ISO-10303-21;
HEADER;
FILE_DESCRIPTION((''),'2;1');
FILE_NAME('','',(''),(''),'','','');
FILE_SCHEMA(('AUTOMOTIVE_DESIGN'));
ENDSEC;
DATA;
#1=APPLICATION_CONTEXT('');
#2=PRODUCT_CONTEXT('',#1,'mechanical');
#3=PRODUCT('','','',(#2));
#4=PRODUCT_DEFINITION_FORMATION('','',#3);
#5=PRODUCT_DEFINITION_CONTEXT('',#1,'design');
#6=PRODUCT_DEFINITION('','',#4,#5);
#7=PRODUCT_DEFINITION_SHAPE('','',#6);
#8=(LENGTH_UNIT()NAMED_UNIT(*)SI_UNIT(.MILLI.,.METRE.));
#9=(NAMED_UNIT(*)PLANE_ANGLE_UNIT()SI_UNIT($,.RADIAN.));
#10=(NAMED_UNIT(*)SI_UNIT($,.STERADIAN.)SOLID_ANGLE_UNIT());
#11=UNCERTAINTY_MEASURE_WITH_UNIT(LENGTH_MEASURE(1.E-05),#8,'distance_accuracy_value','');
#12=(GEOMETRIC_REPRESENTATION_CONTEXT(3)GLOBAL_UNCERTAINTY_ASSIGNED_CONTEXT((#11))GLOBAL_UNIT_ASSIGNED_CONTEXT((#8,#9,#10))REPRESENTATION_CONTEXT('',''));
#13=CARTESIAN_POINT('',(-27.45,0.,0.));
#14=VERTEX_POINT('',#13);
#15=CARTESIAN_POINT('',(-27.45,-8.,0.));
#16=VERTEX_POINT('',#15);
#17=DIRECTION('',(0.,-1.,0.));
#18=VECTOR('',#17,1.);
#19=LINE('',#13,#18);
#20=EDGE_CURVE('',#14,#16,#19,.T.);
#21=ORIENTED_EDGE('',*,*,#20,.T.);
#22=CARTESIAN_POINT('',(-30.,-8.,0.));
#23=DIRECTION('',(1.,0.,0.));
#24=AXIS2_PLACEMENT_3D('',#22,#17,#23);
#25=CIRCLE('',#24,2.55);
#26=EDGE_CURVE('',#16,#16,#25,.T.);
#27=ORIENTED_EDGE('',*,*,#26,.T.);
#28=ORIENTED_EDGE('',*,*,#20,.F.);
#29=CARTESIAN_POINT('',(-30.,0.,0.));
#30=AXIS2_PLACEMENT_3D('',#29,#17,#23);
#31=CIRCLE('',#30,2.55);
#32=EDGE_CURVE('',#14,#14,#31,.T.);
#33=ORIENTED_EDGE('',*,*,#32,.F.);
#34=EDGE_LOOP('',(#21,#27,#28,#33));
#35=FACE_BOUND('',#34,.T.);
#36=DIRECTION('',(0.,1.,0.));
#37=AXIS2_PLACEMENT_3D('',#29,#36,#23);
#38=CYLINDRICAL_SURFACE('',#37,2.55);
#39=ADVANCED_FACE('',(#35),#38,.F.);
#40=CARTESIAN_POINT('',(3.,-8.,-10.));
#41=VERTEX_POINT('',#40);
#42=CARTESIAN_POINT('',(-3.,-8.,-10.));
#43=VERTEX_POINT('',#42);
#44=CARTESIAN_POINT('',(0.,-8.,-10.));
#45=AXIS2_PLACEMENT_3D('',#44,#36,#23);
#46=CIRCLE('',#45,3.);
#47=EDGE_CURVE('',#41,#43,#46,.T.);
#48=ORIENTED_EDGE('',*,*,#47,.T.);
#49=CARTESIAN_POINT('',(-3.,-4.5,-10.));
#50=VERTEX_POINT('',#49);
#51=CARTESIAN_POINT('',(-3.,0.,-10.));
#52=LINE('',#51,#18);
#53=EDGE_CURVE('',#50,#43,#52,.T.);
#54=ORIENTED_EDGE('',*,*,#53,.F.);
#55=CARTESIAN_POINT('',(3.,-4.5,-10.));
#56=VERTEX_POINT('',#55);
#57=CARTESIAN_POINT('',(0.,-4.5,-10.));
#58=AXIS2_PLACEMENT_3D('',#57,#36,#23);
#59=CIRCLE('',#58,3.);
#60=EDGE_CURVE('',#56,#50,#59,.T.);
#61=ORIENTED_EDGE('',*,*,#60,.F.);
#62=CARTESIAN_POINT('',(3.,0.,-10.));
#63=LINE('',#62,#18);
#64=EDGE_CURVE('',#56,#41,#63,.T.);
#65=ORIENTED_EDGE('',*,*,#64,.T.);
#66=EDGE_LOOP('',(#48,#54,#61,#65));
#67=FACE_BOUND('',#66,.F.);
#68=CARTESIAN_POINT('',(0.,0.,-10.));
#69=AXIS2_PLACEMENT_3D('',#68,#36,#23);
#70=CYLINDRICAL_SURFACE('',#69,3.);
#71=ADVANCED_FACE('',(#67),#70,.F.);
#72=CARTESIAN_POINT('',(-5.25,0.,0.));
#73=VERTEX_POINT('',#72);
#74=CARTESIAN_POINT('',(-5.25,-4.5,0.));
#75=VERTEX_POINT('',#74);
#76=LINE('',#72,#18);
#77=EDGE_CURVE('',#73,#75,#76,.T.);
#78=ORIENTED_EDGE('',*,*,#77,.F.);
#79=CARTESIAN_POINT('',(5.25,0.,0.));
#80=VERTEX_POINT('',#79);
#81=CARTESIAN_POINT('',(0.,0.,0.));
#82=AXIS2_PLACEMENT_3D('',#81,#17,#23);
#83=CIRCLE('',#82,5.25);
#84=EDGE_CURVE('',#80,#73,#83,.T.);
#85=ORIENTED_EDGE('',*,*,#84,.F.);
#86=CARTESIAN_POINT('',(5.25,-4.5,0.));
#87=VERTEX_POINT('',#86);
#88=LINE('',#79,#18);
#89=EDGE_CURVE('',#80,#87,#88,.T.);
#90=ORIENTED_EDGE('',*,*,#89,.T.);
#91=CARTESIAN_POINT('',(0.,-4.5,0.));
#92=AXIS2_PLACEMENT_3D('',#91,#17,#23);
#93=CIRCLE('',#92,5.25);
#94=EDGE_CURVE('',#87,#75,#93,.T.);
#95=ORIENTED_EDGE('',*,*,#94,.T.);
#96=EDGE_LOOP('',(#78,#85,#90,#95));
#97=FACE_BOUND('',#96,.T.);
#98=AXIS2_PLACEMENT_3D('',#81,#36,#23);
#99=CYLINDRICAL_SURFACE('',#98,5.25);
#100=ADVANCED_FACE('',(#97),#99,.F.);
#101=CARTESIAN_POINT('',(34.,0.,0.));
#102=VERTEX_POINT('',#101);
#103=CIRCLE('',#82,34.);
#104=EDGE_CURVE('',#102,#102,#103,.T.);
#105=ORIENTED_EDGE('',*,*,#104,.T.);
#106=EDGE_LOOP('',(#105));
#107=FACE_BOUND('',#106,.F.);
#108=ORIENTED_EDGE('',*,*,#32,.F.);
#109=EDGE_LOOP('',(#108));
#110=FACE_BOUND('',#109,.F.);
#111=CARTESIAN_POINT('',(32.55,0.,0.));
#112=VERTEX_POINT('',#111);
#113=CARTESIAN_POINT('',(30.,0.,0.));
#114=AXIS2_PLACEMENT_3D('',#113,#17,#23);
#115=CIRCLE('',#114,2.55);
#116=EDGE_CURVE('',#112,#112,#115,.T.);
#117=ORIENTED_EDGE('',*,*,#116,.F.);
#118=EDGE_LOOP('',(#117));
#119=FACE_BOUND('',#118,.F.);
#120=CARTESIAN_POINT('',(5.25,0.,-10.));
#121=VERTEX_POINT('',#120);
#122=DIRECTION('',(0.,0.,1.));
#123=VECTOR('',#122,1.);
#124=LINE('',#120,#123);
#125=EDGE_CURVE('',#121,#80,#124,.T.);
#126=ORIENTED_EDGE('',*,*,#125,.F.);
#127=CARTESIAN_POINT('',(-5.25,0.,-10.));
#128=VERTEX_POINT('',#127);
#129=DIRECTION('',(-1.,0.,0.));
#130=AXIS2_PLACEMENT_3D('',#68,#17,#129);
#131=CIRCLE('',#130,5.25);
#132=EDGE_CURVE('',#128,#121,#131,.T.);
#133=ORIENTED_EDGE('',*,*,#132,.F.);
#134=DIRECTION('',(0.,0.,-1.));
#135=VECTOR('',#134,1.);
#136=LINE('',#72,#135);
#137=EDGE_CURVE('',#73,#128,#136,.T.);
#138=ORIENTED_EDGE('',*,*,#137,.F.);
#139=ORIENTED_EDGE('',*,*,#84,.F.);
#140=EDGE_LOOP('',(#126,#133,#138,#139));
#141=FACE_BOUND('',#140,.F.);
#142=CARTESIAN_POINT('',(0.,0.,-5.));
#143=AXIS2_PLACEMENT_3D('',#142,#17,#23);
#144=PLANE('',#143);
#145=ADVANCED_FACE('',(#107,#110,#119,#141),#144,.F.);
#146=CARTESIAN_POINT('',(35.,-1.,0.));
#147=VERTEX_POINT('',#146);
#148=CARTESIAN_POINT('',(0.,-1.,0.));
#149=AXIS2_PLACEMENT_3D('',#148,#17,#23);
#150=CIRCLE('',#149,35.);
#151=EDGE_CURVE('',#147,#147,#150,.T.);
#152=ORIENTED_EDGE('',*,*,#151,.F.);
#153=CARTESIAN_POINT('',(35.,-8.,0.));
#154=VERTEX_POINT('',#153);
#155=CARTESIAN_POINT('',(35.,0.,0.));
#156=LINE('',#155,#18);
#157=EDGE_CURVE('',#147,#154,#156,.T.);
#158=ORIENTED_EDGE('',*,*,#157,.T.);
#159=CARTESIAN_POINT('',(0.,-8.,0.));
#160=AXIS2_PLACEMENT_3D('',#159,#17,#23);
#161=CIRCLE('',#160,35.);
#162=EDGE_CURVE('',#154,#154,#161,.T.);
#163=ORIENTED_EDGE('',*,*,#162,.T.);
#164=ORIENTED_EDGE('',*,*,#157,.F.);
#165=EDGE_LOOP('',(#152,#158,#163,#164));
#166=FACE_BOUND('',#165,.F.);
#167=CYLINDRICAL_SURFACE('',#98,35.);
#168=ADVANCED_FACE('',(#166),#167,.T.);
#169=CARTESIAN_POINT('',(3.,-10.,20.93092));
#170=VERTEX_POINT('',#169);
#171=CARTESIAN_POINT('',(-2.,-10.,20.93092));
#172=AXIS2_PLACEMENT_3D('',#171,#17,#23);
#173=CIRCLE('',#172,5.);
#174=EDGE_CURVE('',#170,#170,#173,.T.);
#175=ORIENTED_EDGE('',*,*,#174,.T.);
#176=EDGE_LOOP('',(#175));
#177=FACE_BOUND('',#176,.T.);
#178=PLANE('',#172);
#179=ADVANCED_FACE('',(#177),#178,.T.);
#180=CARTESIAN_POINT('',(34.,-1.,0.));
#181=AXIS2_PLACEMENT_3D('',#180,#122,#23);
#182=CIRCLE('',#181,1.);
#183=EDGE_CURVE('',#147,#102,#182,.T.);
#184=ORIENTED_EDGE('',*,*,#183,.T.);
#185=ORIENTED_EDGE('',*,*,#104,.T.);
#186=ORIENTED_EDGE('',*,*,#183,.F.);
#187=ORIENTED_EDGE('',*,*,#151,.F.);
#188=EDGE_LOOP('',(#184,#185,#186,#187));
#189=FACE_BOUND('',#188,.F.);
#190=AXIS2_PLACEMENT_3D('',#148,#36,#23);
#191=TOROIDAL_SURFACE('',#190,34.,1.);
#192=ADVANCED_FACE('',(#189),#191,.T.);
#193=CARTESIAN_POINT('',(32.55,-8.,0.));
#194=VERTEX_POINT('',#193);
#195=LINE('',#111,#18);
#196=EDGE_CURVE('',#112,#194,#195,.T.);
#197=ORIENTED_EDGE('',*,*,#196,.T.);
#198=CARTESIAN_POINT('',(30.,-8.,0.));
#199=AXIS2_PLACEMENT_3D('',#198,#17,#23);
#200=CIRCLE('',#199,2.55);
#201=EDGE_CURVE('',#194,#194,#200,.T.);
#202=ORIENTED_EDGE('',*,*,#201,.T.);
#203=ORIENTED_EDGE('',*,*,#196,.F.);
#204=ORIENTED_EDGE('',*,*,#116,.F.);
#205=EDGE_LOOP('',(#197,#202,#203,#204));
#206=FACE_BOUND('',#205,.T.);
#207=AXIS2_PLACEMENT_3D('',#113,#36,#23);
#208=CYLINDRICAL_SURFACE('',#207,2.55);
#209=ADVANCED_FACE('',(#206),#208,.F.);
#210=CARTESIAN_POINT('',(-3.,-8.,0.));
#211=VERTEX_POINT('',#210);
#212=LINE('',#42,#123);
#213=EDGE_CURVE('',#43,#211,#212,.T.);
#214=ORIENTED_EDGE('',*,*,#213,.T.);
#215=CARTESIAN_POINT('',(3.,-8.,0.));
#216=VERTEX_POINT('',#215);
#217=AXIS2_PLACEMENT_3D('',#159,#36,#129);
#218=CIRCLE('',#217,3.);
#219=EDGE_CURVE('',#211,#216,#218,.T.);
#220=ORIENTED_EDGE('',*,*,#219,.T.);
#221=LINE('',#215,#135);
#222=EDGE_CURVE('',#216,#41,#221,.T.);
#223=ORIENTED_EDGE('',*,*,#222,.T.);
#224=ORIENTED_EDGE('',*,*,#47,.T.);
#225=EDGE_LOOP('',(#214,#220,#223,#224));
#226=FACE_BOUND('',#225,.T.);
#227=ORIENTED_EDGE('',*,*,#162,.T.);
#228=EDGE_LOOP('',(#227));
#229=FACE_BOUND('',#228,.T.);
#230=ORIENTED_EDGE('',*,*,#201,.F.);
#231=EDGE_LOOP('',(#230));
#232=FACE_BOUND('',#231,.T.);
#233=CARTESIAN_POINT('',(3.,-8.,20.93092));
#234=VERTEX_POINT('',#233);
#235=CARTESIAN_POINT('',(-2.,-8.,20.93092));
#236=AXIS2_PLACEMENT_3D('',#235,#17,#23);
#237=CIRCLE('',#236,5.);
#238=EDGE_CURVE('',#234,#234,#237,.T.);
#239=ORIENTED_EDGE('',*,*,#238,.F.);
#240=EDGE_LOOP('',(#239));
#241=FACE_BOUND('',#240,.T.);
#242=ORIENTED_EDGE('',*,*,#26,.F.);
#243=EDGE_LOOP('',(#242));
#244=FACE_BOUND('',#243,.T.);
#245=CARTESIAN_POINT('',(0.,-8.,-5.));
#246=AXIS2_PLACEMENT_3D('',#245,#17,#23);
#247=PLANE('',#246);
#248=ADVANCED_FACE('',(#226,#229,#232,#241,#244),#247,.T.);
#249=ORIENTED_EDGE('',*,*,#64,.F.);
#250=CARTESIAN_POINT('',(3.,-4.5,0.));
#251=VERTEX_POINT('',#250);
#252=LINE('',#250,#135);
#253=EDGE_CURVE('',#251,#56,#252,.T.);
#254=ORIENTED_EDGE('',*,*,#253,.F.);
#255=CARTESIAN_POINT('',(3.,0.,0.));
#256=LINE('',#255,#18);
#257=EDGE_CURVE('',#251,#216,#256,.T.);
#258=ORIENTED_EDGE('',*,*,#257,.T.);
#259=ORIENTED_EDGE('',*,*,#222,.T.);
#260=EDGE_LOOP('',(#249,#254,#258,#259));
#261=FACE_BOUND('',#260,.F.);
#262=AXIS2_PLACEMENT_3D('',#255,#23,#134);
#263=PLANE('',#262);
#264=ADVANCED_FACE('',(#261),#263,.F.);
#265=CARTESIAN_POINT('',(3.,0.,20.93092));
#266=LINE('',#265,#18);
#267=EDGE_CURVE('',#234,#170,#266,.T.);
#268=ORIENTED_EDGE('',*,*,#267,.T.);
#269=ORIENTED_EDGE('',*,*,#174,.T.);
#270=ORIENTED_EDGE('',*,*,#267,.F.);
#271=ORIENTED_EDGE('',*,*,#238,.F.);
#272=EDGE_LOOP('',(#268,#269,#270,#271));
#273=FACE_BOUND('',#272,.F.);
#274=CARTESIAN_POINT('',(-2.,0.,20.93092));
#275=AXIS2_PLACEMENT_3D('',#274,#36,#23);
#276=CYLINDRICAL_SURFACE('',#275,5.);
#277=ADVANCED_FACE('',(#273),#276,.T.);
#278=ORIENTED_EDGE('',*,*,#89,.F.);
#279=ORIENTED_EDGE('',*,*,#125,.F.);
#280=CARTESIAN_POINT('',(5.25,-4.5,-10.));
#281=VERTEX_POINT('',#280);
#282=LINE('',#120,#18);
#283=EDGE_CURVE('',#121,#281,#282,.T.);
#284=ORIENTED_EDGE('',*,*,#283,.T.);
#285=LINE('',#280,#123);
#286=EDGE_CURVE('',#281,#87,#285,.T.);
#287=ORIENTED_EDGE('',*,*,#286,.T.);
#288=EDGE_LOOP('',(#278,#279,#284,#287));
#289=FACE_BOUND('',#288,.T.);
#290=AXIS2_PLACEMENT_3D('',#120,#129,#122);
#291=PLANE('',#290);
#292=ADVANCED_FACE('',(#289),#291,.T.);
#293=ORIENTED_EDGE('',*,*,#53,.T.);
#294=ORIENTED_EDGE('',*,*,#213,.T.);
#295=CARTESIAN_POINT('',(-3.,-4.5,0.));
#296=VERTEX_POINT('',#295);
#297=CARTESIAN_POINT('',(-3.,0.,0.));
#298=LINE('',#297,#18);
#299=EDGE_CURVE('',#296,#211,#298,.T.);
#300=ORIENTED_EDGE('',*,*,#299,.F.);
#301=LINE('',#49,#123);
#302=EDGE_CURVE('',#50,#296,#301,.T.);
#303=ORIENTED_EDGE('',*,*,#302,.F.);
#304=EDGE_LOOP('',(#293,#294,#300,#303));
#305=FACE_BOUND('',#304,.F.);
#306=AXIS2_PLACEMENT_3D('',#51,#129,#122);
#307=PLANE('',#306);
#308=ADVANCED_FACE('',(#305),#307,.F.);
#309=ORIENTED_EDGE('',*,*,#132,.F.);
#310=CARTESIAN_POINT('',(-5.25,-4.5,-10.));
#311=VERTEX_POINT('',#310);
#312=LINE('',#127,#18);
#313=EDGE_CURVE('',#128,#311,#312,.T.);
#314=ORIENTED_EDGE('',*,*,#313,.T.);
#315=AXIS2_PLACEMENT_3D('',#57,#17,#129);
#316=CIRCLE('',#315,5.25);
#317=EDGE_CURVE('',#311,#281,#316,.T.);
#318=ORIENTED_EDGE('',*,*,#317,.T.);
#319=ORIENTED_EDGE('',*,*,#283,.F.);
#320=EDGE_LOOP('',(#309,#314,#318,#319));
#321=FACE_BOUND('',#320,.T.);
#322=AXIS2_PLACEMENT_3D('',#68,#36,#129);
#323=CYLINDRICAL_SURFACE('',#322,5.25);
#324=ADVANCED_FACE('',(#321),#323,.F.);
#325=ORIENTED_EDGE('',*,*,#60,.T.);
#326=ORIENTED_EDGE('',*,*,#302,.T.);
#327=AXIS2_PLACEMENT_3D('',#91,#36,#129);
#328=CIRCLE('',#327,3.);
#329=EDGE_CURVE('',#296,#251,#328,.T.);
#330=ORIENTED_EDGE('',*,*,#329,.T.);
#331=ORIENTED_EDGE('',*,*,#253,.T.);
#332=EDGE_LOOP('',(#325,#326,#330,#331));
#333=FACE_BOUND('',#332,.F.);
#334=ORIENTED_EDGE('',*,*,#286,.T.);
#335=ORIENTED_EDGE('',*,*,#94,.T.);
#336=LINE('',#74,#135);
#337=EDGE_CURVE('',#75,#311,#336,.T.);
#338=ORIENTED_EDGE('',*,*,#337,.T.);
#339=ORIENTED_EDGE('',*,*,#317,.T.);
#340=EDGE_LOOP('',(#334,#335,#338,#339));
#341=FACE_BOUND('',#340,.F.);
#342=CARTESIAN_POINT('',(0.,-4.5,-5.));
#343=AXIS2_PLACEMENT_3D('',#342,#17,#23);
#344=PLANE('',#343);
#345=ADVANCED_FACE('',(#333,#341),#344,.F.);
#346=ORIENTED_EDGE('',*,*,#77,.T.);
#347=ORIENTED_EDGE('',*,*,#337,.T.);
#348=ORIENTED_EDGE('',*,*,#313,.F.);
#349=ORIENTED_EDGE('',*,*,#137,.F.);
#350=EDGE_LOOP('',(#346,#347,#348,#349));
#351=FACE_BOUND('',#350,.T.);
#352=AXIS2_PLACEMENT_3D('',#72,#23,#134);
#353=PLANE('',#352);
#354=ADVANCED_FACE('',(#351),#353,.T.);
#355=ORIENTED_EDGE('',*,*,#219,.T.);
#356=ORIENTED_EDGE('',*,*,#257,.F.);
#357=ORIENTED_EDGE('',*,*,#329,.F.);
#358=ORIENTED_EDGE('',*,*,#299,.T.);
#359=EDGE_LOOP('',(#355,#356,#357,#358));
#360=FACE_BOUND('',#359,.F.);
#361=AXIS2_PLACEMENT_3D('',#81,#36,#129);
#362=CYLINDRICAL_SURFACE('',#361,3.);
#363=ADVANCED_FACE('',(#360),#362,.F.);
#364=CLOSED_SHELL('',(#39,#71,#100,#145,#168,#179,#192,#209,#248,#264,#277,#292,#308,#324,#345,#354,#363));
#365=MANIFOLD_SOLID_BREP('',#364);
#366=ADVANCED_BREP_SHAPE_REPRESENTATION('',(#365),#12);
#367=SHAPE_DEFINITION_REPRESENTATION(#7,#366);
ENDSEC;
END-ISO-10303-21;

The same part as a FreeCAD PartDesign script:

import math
import FreeCAD as App
import Part
import Sketcher
from FreeCAD import Vector


def edges_at(feature, points):
    """Names of the edges that pass closest to the given points."""
    edges = feature.Shape.Edges
    near = lambda p: min(range(len(edges)), key=lambda i: edges[i].distToShape(Part.Vertex(*p))[0])
    return sorted({f"Edge{near(p) + 1}" for p in points})

doc = App.newDocument("Part")
body = doc.addObject("PartDesign::Body", "Body")

# Sketch on XZ plane
sketch1 = body.newObject("Sketcher::SketchObject", "Sketch")
sketch1.AttachmentSupport = (doc.getObject("XZ_Plane"), [""])
sketch1.MapMode = "FlatFace"
sketch1.addGeometry(Part.Circle(Vector(0, 0, 0), Vector(0, 0, 1), 35), False)
sketch1.addGeometry(Part.Circle(Vector(-30, 0, 0), Vector(0, 0, 1), 2.55), False)
sketch1.addGeometry(Part.LineSegment(Vector(-5.25, -10, 0), Vector(-5.25, 0, 0)), False)
sketch1.addGeometry(Part.ArcOfCircle(Part.Circle(Vector(0, 0, 0), Vector(0, 0, 1), 5.25), math.radians(0), math.radians(180)), False)
sketch1.addGeometry(Part.LineSegment(Vector(5.25, 0, 0), Vector(5.25, -10, 0)), False)
sketch1.addGeometry(Part.ArcOfCircle(Part.Circle(Vector(0, -10, 0), Vector(0, 0, 1), 5.25), math.radians(180), math.radians(360)), False)
sketch1.addGeometry(Part.Circle(Vector(30, 0, 0), Vector(0, 0, 1), 2.55), False)
sketch1.addGeometry(Part.Circle(Vector(-2, 20.93092, 0), Vector(0, 0, 1), 5), False)
sketch1.addConstraint(Sketcher.Constraint("Tangent", 2, 2, 3, 2))
sketch1.addConstraint(Sketcher.Constraint("Tangent", 3, 1, 4, 1))
sketch1.addConstraint(Sketcher.Constraint("Tangent", 4, 2, 5, 2))
sketch1.addConstraint(Sketcher.Constraint("Tangent", 5, 1, 2, 1))
sketch1.addConstraint(Sketcher.Constraint("Vertical", 2))
sketch1.addConstraint(Sketcher.Constraint("Vertical", 4))
sketch1.addConstraint(Sketcher.Constraint("Coincident", 0, 3, -1, 1))
sketch1.addConstraint(Sketcher.Constraint("Coincident", 3, 3, -1, 1))
sketch1.addConstraint(Sketcher.Constraint("Equal", 1, 6))
sketch1.addConstraint(Sketcher.Constraint("Symmetric", 1, 3, 6, 3, -1, 1))
sketch1.addConstraint(Sketcher.Constraint("PointOnObject", 1, 3, -1))
sketch1.addConstraint(Sketcher.Constraint("Diameter", 0, 70.0))
sketch1.addConstraint(Sketcher.Constraint("Diameter", 7, 10.0))
sketch1.addConstraint(Sketcher.Constraint("Diameter", 1, 5.1))
sketch1.addConstraint(Sketcher.Constraint("DistanceY", 2, 1, 2, 2, 10.0))
sketch1.addConstraint(Sketcher.Constraint("Radius", 3, 5.25))
sketch1.addConstraint(Sketcher.Constraint("DistanceX", 1, 3, -1, 1, 30.0))
sketch1.addConstraint(Sketcher.Constraint("DistanceX", 7, 3, -1, 1, 2.0))
sketch1.addConstraint(Sketcher.Constraint("DistanceY", -1, 1, 7, 3, 20.93092))
pad1 = body.newObject("PartDesign::Pad", "Pad")
pad1.Profile = sketch1
pad1.Length = 8

# Sketch on XZ plane
sketch2 = body.newObject("Sketcher::SketchObject", "Sketch001")
sketch2.AttachmentSupport = (doc.getObject("XZ_Plane"), [""])
sketch2.MapMode = "FlatFace"
sketch2.addGeometry(Part.LineSegment(Vector(5.25, -10, 0), Vector(5.25, 0, 0)), False)
sketch2.addGeometry(Part.ArcOfCircle(Part.Circle(Vector(0, 0, 0), Vector(0, 0, 1), 5.25), math.radians(0), math.radians(180)), False)
sketch2.addGeometry(Part.LineSegment(Vector(-5.25, 0, 0), Vector(-5.25, -10, 0)), False)
sketch2.addGeometry(Part.ArcOfCircle(Part.Circle(Vector(0, -10, 0), Vector(0, 0, 1), 5.25), math.radians(180), math.radians(360)), False)
sketch2.addGeometry(Part.LineSegment(Vector(-3, -10, 0), Vector(-3, 0, 0)), False)
sketch2.addGeometry(Part.ArcOfCircle(Part.Circle(Vector(0, 0, 0), Vector(0, 0, 1), 3), math.radians(0), math.radians(180)), False)
sketch2.addGeometry(Part.LineSegment(Vector(3, 0, 0), Vector(3, -10, 0)), False)
sketch2.addGeometry(Part.ArcOfCircle(Part.Circle(Vector(0, -10, 0), Vector(0, 0, 1), 3), math.radians(180), math.radians(360)), False)
sketch2.addConstraint(Sketcher.Constraint("Tangent", 0, 2, 1, 1))
sketch2.addConstraint(Sketcher.Constraint("Tangent", 1, 2, 2, 1))
sketch2.addConstraint(Sketcher.Constraint("Tangent", 2, 2, 3, 1))
sketch2.addConstraint(Sketcher.Constraint("Tangent", 3, 2, 0, 1))
sketch2.addConstraint(Sketcher.Constraint("Tangent", 4, 2, 5, 2))
sketch2.addConstraint(Sketcher.Constraint("Tangent", 5, 1, 6, 1))
sketch2.addConstraint(Sketcher.Constraint("Tangent", 6, 2, 7, 2))
sketch2.addConstraint(Sketcher.Constraint("Tangent", 7, 1, 4, 1))
sketch2.addConstraint(Sketcher.Constraint("Vertical", 0))
sketch2.addConstraint(Sketcher.Constraint("Vertical", 2))
sketch2.addConstraint(Sketcher.Constraint("Vertical", 4))
sketch2.addConstraint(Sketcher.Constraint("Vertical", 6))
sketch2.addConstraint(Sketcher.Constraint("Coincident", 1, 3, -1, 1))
sketch2.addConstraint(Sketcher.Constraint("Coincident", 5, 3, -1, 1))
sketch2.addConstraint(Sketcher.Constraint("Horizontal", 7, 3, 2, 2))
sketch2.addConstraint(Sketcher.Constraint("Radius", 5, 3.0))
sketch2.addConstraint(Sketcher.Constraint("DistanceY", 0, 1, 0, 2, 10.0))
sketch2.addConstraint(Sketcher.Constraint("Radius", 1, 5.25))
pad2 = body.newObject("PartDesign::Pad", "Pad001")
pad2.Profile = sketch2
pad2.Length = 8

# Sketch on XZ plane
sketch3 = body.newObject("Sketcher::SketchObject", "Sketch002")
sketch3.AttachmentSupport = (doc.getObject("XZ_Plane"), [""])
sketch3.MapMode = "FlatFace"
sketch3.addGeometry(Part.LineSegment(Vector(5.25, -10, 0), Vector(5.25, 0, 0)), False)
sketch3.addGeometry(Part.ArcOfCircle(Part.Circle(Vector(0, 0, 0), Vector(0, 0, 1), 5.25), math.radians(0), math.radians(180)), False)
sketch3.addGeometry(Part.LineSegment(Vector(-5.25, 0, 0), Vector(-5.25, -10, 0)), False)
sketch3.addGeometry(Part.ArcOfCircle(Part.Circle(Vector(0, -10, 0), Vector(0, 0, 1), 5.25), math.radians(180), math.radians(360)), False)
sketch3.addGeometry(Part.LineSegment(Vector(-3, -10, 0), Vector(-3, 0, 0)), False)
sketch3.addGeometry(Part.ArcOfCircle(Part.Circle(Vector(0, 0, 0), Vector(0, 0, 1), 3), math.radians(0), math.radians(180)), False)
sketch3.addGeometry(Part.LineSegment(Vector(3, 0, 0), Vector(3, -10, 0)), False)
sketch3.addGeometry(Part.ArcOfCircle(Part.Circle(Vector(0, -10, 0), Vector(0, 0, 1), 3), math.radians(180), math.radians(360)), False)
sketch3.addConstraint(Sketcher.Constraint("Tangent", 0, 2, 1, 1))
sketch3.addConstraint(Sketcher.Constraint("Tangent", 1, 2, 2, 1))
sketch3.addConstraint(Sketcher.Constraint("Tangent", 2, 2, 3, 1))
sketch3.addConstraint(Sketcher.Constraint("Tangent", 3, 2, 0, 1))
sketch3.addConstraint(Sketcher.Constraint("Tangent", 4, 2, 5, 2))
sketch3.addConstraint(Sketcher.Constraint("Tangent", 5, 1, 6, 1))
sketch3.addConstraint(Sketcher.Constraint("Tangent", 6, 2, 7, 2))
sketch3.addConstraint(Sketcher.Constraint("Tangent", 7, 1, 4, 1))
sketch3.addConstraint(Sketcher.Constraint("Vertical", 0))
sketch3.addConstraint(Sketcher.Constraint("Vertical", 2))
sketch3.addConstraint(Sketcher.Constraint("Vertical", 4))
sketch3.addConstraint(Sketcher.Constraint("Vertical", 6))
sketch3.addConstraint(Sketcher.Constraint("Coincident", 1, 3, -1, 1))
sketch3.addConstraint(Sketcher.Constraint("Coincident", 5, 3, -1, 1))
sketch3.addConstraint(Sketcher.Constraint("Horizontal", 7, 3, 2, 2))
sketch3.addConstraint(Sketcher.Constraint("Radius", 5, 3.0))
sketch3.addConstraint(Sketcher.Constraint("DistanceY", 0, 1, 0, 2, 10.0))
sketch3.addConstraint(Sketcher.Constraint("Radius", 1, 5.25))
pocket1 = body.newObject("PartDesign::Pocket", "Pocket")
pocket1.Profile = sketch3
pocket1.Length = 4.5
pocket1.Reversed = True
doc.recompute()

fillet = body.newObject("PartDesign::Fillet", "Fillet")
fillet.Base = (pocket1, edges_at(pocket1, [(-35, 0, 0)]))
fillet.Radius = 1

# Sketch on XZ plane
sketch4 = body.newObject("Sketcher::SketchObject", "Sketch003")
sketch4.AttachmentSupport = (doc.getObject("XZ_Plane"), [""])
sketch4.MapMode = "FlatFace"
sketch4.addGeometry(Part.Circle(Vector(-2, 20.93092, 0), Vector(0, 0, 1), 5), False)
sketch4.addConstraint(Sketcher.Constraint("Diameter", 0, 10.0))
sketch4.addConstraint(Sketcher.Constraint("DistanceX", 0, 3, -1, 1, 2.0))
sketch4.addConstraint(Sketcher.Constraint("DistanceY", -1, 1, 0, 3, 20.93092))
pad3 = body.newObject("PartDesign::Pad", "Pad002")
pad3.Profile = sketch4
pad3.Length = 10

doc.recompute()
